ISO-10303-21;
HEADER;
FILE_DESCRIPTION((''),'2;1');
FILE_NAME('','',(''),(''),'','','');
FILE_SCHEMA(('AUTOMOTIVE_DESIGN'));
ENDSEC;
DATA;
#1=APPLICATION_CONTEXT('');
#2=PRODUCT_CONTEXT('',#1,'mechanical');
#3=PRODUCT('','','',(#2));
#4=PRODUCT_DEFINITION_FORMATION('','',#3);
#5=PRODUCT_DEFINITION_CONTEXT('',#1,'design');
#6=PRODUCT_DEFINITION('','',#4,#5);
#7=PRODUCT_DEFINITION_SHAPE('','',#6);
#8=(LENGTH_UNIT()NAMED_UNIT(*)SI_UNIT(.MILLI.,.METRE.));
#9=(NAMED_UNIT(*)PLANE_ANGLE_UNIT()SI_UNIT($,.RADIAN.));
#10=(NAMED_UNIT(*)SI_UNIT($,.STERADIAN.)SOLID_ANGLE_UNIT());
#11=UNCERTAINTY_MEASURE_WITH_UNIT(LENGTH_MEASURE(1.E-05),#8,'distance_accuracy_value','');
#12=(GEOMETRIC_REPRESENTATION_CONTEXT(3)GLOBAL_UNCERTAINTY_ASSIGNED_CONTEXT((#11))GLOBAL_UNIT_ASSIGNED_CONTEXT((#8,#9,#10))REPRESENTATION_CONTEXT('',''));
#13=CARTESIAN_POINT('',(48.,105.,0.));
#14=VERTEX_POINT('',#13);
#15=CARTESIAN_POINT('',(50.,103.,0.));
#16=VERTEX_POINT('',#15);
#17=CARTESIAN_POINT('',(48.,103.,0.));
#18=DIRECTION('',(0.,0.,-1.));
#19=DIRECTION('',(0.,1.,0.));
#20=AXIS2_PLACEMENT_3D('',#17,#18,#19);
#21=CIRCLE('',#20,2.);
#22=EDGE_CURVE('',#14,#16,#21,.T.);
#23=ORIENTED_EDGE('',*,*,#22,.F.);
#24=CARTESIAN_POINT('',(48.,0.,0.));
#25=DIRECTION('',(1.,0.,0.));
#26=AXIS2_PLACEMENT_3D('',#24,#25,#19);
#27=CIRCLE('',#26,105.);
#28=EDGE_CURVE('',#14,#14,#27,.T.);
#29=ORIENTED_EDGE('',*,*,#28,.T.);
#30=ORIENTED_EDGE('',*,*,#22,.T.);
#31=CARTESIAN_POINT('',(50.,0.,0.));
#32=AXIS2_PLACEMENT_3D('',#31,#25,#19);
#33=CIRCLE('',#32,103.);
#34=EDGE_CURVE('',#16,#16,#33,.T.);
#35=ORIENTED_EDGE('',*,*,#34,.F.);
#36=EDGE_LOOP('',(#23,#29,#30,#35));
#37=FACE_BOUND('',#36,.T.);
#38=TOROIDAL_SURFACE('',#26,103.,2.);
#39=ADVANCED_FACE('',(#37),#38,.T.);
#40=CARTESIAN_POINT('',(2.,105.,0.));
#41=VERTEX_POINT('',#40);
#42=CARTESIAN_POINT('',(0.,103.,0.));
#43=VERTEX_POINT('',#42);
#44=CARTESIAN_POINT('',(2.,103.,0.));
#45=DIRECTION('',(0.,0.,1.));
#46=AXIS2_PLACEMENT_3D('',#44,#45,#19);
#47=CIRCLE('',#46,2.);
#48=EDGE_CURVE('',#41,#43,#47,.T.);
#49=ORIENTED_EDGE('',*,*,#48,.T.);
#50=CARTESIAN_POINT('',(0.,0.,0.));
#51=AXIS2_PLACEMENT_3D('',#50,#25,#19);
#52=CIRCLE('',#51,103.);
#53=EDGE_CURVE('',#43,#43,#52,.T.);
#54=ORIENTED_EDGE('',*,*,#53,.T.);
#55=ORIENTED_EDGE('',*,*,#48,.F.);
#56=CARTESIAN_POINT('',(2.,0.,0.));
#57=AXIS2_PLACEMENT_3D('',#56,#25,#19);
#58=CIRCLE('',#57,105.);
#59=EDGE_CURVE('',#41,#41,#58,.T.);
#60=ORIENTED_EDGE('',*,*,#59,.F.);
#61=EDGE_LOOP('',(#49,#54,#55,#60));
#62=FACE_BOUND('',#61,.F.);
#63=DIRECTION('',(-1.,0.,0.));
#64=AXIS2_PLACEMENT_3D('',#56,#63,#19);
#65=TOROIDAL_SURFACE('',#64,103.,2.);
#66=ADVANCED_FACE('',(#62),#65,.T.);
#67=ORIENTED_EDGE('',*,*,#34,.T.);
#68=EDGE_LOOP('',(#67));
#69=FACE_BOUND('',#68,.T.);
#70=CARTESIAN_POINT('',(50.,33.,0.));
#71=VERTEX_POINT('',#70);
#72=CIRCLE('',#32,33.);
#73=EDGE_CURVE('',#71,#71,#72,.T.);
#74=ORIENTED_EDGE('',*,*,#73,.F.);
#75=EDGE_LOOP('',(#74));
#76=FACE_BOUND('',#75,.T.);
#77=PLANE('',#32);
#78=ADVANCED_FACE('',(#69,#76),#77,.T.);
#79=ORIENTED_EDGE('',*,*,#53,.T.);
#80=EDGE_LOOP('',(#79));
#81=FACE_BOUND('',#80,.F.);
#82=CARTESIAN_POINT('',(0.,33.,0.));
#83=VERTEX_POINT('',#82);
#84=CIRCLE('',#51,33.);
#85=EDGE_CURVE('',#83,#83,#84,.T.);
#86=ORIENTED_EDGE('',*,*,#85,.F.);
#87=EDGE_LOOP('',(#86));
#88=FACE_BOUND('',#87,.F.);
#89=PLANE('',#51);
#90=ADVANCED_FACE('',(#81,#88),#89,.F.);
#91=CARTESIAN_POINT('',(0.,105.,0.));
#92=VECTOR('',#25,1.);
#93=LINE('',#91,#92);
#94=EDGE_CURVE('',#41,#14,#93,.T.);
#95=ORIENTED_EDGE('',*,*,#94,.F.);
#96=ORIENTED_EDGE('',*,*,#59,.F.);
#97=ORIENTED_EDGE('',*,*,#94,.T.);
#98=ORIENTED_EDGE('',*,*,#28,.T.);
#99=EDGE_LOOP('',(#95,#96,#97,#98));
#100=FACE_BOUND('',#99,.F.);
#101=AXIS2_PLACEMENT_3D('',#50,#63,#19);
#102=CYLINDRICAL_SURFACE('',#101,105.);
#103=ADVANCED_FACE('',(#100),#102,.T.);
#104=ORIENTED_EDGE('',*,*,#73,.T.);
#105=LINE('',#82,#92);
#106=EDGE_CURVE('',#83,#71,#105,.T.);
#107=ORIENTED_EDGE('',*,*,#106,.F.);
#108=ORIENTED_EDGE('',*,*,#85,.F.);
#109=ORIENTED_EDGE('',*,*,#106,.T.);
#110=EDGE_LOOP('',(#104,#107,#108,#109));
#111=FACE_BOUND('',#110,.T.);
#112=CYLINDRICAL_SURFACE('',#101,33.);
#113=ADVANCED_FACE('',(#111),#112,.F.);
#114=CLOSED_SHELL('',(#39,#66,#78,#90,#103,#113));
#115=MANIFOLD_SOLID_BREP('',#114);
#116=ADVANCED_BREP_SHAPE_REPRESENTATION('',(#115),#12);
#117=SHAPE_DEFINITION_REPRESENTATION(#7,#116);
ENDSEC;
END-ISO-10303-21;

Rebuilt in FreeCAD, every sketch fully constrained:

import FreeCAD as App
import Part
import Sketcher
from FreeCAD import Vector


def edges_at(feature, points):
    """Names of the edges that pass closest to the given points."""
    edges = feature.Shape.Edges
    near = lambda p: min(range(len(edges)), key=lambda i: edges[i].distToShape(Part.Vertex(*p))[0])
    return sorted({f"Edge{near(p) + 1}" for p in points})

doc = App.newDocument("Part")
body = doc.addObject("PartDesign::Body", "Body")

sketch1 = body.newObject("Sketcher::SketchObject", "Sketch")
sketch1.AttachmentSupport = (doc.getObject("YZ_Plane"), [""])
sketch1.MapMode = "FlatFace"
sketch1.addGeometry(Part.Circle(Vector(0, 0, 0), Vector(0, 0, 1), 105), False)
sketch1.addGeometry(Part.Circle(Vector(0, 0, 0), Vector(0, 0, 1), 33), False)
sketch1.addConstraint(Sketcher.Constraint("Coincident", 0, 3, -1, 1))
sketch1.addConstraint(Sketcher.Constraint("Coincident", 1, 3, -1, 1))
sketch1.addConstraint(Sketcher.Constraint("Diameter", 0, 210.0))
sketch1.addConstraint(Sketcher.Constraint("Diameter", 1, 66.0))
pad1 = body.newObject("PartDesign::Pad", "Pad")
pad1.Profile = sketch1
pad1.Length = 50
doc.recompute()

fillet = body.newObject("PartDesign::Fillet", "Fillet")
fillet.Base = (pad1, edges_at(pad1, [(50, -105, 0), (0, -105, 0)]))
fillet.Radius = 2

doc.recompute()
